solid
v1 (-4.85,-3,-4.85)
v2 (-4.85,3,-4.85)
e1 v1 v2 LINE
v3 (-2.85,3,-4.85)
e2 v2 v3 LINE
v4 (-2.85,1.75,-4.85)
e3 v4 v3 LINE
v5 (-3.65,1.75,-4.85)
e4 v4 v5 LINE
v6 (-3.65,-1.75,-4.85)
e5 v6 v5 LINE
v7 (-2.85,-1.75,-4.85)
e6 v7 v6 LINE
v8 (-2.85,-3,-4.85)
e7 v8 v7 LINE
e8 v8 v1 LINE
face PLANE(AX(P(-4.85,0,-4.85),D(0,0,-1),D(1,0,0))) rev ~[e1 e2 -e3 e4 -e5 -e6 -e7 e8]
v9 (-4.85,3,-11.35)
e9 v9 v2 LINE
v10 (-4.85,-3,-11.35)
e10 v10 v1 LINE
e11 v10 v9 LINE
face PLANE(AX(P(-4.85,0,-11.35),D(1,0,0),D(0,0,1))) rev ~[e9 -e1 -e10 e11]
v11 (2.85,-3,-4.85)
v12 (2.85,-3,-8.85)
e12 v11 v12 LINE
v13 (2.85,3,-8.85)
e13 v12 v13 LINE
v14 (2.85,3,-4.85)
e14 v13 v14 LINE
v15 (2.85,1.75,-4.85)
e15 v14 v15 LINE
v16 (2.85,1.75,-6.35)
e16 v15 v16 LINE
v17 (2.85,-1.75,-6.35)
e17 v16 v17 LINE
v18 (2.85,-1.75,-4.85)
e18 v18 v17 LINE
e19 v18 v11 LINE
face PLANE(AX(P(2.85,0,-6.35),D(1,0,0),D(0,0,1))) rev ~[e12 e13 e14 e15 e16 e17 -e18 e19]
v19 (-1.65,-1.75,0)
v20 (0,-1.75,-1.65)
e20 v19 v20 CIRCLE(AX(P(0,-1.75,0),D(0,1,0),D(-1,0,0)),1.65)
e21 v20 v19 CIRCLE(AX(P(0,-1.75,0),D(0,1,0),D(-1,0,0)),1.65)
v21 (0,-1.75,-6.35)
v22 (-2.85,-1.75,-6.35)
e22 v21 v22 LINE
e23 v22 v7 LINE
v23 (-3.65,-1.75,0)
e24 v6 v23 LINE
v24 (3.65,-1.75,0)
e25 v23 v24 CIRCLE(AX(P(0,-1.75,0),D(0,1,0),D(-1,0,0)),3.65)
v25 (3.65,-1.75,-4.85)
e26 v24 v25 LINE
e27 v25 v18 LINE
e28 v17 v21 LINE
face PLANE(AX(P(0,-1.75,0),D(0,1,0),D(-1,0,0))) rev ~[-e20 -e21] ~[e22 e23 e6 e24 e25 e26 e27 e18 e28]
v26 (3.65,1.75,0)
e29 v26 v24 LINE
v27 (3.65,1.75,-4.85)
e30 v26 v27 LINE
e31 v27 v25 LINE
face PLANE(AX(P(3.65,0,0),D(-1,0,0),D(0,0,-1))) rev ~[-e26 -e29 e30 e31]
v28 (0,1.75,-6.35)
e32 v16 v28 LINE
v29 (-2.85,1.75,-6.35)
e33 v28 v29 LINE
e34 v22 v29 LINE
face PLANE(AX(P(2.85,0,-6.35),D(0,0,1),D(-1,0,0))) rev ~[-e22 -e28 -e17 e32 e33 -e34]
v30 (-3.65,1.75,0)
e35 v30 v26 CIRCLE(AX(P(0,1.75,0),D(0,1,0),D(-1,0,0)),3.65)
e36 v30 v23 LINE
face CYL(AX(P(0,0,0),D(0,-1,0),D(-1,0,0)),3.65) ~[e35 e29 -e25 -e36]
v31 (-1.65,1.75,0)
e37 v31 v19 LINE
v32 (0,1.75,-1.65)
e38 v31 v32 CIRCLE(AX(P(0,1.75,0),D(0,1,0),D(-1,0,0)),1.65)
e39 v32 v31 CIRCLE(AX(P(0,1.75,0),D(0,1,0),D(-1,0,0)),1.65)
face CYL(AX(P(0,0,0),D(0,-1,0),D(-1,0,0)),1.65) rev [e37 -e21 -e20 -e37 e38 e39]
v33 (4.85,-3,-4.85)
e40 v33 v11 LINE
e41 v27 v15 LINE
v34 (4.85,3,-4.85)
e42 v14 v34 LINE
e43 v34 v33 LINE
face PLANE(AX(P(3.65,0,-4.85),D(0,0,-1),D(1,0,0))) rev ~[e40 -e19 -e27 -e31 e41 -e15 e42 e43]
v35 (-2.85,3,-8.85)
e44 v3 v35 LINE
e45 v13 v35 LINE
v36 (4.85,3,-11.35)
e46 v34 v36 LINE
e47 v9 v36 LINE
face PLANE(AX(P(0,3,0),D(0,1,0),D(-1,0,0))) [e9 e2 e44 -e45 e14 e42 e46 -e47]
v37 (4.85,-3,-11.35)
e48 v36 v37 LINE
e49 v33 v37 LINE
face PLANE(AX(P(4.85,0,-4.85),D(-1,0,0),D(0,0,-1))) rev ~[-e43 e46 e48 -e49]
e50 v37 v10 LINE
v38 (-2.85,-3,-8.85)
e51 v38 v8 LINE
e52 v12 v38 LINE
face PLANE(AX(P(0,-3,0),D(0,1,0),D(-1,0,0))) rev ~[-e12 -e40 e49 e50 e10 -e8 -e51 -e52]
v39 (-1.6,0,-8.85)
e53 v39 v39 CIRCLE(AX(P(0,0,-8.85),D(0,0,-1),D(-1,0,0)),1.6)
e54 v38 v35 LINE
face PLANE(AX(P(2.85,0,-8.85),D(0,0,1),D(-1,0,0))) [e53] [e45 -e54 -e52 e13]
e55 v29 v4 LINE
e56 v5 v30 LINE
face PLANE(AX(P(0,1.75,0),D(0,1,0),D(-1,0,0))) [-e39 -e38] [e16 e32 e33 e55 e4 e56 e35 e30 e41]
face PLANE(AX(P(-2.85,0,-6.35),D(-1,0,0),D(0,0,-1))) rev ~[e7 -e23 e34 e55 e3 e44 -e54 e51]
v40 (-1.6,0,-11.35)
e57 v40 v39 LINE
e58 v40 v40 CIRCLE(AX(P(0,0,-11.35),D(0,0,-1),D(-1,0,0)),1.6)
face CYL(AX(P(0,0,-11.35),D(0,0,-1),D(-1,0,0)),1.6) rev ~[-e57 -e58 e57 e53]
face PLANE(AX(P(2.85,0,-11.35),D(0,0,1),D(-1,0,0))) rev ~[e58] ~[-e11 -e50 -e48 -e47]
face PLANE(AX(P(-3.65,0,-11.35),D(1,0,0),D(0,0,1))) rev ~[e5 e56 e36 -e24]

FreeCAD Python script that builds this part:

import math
import FreeCAD as App
import Part
import Sketcher
from FreeCAD import Vector

doc = App.newDocument("Part")
body = doc.addObject("PartDesign::Body", "Body")

sketch1 = doc.addObject("Sketcher::SketchObject", "Sketch")
body.addObject(sketch1)
sketch1.AttachmentSupport = (doc.XZ_Plane, [""])
sketch1.MapMode = "FlatFace"
sketch1.addGeometry([
    Part.LineSegment(Vector(3.6, -11.3, 0), Vector(0, -11.3, 0)),
    Part.LineSegment(Vector(0, -11.3, 0), Vector(-3.6, -11.3, 0)),
    Part.LineSegment(Vector(-3.6, -11.3, 0), Vector(-3.6, 0, 0)),
    Part.ArcOfCircle(Part.Circle(Vector(0, 0, 0), Vector(0, 0, 1), 3.6), math.radians(0), math.radians(180)),
    Part.LineSegment(Vector(3.6, 0, 0), Vector(3.6, -11.3, 0)),
    Part.LineSegment(Vector(2.9, -6.3, 0), Vector(0, -6.3, 0)),
    Part.LineSegment(Vector(0, -6.3, 0), Vector(-2.9, -6.3, 0)),
    Part.LineSegment(Vector(-2.9, -6.3, 0), Vector(-2.9, -9.3, 0)),
    Part.LineSegment(Vector(-2.9, -9.3, 0), Vector(0, -9.3, 0)),
    Part.LineSegment(Vector(0, -9.3, 0), Vector(2.9, -9.3, 0)),
    Part.LineSegment(Vector(2.9, -9.3, 0), Vector(2.9, -6.3, 0)),
    Part.Circle(Vector(0, 0, 0), Vector(0, 0, 1), 1.6),
], False)
sketch1.addConstraint([
    Sketcher.Constraint("Coincident", 0, 2, 1, 1),
    Sketcher.Constraint("Coincident", 1, 2, 2, 1),
    Sketcher.Constraint("Tangent", 2, 2, 3, 2),
    Sketcher.Constraint("Tangent", 3, 1, 4, 1),
    Sketcher.Constraint("Coincident", 4, 2, 0, 1),
    Sketcher.Constraint("Coincident", 5, 2, 6, 1),
    Sketcher.Constraint("Coincident", 6, 2, 7, 1),
    Sketcher.Constraint("Coincident", 7, 2, 8, 1),
    Sketcher.Constraint("Coincident", 8, 2, 9, 1),
    Sketcher.Constraint("Coincident", 9, 2, 10, 1),
    Sketcher.Constraint("Coincident", 10, 2, 5, 1),
    Sketcher.Constraint("Horizontal", 0),
    Sketcher.Constraint("Horizontal", 1),
    Sketcher.Constraint("Vertical", 2),
    Sketcher.Constraint("Vertical", 4),
    Sketcher.Constraint("Horizontal", 5),
    Sketcher.Constraint("Horizontal", 6),
    Sketcher.Constraint("Vertical", 7),
    Sketcher.Constraint("Horizontal", 8),
    Sketcher.Constraint("Horizontal", 9),
    Sketcher.Constraint("Vertical", 10),
    Sketcher.Constraint("Coincident", 3, 3, -1, 1),
    Sketcher.Constraint("Coincident", 11, 3, -1, 1),
    Sketcher.Constraint("PointOnObject", 0, 2, -2),
    Sketcher.Constraint("PointOnObject", 5, 2, -2),
    Sketcher.Constraint("PointOnObject", 8, 2, -2),
    Sketcher.Constraint("Equal", 5, 6),
    Sketcher.Constraint("Diameter", 11, 3.3),
    Sketcher.Constraint("Radius", 3, 3.65),
    Sketcher.Constraint("DistanceY", 0, 2, 5, 2, 5.0),
    Sketcher.Constraint("DistanceY", 1, 2, 7, 2, 2.0),
    Sketcher.Constraint("DistanceX", 1, 2, 6, 2, 0.8),
    Sketcher.Constraint("DistanceY", 2, 1, 2, 2, 11.35),
])
pad1 = doc.addObject("PartDesign::Pad", "Pad")
body.addObject(pad1)
pad1.Profile = sketch1
pad1.Length = 3.5
pad1.Midplane = True

sketch2 = doc.addObject("Sketcher::SketchObject", "Sketch001")
body.addObject(sketch2)
sketch2.AttachmentSupport = (doc.XZ_Plane, [""])
sketch2.MapMode = "FlatFace"
sketch2.addGeometry([
    Part.LineSegment(Vector(-4.8, -11.3, 0), Vector(-4.8, -4.8, 0)),
    Part.LineSegment(Vector(-4.8, -4.8, 0), Vector(-2.9, -4.8, 0)),
    Part.LineSegment(Vector(-2.9, -4.8, 0), Vector(-2.9, -8.8, 0)),
    Part.LineSegment(Vector(-2.9, -8.8, 0), Vector(2.9, -8.8, 0)),
    Part.LineSegment(Vector(2.9, -8.8, 0), Vector(2.9, -4.8, 0)),
    Part.LineSegment(Vector(2.9, -4.8, 0), Vector(4.8, -4.8, 0)),
    Part.LineSegment(Vector(4.8, -4.8, 0), Vector(4.8, -11.3, 0)),
    Part.LineSegment(Vector(4.8, -11.3, 0), Vector(-4.8, -11.3, 0)),
], False)
sketch2.addConstraint([
    Sketcher.Constraint("Coincident", 0, 2, 1, 1),
    Sketcher.Constraint("Coincident", 1, 2, 2, 1),
    Sketcher.Constraint("Coincident", 2, 2, 3, 1),
    Sketcher.Constraint("Coincident", 3, 2, 4, 1),
    Sketcher.Constraint("Coincident", 4, 2, 5, 1),
    Sketcher.Constraint("Coincident", 5, 2, 6, 1),
    Sketcher.Constraint("Coincident", 6, 2, 7, 1),
    Sketcher.Constraint("Coincident", 7, 2, 0, 1),
    Sketcher.Constraint("Vertical", 0),
    Sketcher.Constraint("Horizontal", 1),
    Sketcher.Constraint("Vertical", 2),
    Sketcher.Constraint("Horizontal", 3),
    Sketcher.Constraint("Vertical", 4),
    Sketcher.Constraint("Horizontal", 5),
    Sketcher.Constraint("Vertical", 6),
    Sketcher.Constraint("Horizontal", 7),
    Sketcher.Constraint("Symmetric", 1, 2, 4, 2, -2),
    Sketcher.Constraint("Equal", 1, 5),
    Sketcher.Constraint("DistanceX", 1, 1, 1, 2, 2.0),
    Sketcher.Constraint("DistanceY", 2, 2, 2, 1, 4.0),
    Sketcher.Constraint("DistanceX", 3, 1, 3, 2, 5.7),
    Sketcher.Constraint("DistanceY", 0, 1, 0, 2, 6.5),
    Sketcher.Constraint("DistanceY", 0, 2, -1, 1, 4.85),
])
pad2 = doc.addObject("PartDesign::Pad", "Pad001")
body.addObject(pad2)
pad2.Profile = sketch2
pad2.Length = 6
pad2.Midplane = True

sketch3 = doc.addObject("Sketcher::SketchObject", "Sketch002")
body.addObject(sketch3)
sketch3.AttachmentSupport = (doc.XY_Plane, [""])
sketch3.MapMode = "FlatFace"
sketch3.AttachmentOffset = App.Placement(Vector(0, 0, -11.35), App.Rotation())
sketch3.addGeometry(Part.Circle(Vector(0, 0, 0), Vector(0, 0, 1), 1.6), False)
sketch3.addConstraint([
    Sketcher.Constraint("Coincident", 0, 3, -1, 1),
    Sketcher.Constraint("Diameter", 0, 3.2),
])
pocket1 = doc.addObject("PartDesign::Pocket", "Pocket")
body.addObject(pocket1)
pocket1.Profile = sketch3
pocket1.Length = 2.5
pocket1.Reversed = True

doc.recompute()
